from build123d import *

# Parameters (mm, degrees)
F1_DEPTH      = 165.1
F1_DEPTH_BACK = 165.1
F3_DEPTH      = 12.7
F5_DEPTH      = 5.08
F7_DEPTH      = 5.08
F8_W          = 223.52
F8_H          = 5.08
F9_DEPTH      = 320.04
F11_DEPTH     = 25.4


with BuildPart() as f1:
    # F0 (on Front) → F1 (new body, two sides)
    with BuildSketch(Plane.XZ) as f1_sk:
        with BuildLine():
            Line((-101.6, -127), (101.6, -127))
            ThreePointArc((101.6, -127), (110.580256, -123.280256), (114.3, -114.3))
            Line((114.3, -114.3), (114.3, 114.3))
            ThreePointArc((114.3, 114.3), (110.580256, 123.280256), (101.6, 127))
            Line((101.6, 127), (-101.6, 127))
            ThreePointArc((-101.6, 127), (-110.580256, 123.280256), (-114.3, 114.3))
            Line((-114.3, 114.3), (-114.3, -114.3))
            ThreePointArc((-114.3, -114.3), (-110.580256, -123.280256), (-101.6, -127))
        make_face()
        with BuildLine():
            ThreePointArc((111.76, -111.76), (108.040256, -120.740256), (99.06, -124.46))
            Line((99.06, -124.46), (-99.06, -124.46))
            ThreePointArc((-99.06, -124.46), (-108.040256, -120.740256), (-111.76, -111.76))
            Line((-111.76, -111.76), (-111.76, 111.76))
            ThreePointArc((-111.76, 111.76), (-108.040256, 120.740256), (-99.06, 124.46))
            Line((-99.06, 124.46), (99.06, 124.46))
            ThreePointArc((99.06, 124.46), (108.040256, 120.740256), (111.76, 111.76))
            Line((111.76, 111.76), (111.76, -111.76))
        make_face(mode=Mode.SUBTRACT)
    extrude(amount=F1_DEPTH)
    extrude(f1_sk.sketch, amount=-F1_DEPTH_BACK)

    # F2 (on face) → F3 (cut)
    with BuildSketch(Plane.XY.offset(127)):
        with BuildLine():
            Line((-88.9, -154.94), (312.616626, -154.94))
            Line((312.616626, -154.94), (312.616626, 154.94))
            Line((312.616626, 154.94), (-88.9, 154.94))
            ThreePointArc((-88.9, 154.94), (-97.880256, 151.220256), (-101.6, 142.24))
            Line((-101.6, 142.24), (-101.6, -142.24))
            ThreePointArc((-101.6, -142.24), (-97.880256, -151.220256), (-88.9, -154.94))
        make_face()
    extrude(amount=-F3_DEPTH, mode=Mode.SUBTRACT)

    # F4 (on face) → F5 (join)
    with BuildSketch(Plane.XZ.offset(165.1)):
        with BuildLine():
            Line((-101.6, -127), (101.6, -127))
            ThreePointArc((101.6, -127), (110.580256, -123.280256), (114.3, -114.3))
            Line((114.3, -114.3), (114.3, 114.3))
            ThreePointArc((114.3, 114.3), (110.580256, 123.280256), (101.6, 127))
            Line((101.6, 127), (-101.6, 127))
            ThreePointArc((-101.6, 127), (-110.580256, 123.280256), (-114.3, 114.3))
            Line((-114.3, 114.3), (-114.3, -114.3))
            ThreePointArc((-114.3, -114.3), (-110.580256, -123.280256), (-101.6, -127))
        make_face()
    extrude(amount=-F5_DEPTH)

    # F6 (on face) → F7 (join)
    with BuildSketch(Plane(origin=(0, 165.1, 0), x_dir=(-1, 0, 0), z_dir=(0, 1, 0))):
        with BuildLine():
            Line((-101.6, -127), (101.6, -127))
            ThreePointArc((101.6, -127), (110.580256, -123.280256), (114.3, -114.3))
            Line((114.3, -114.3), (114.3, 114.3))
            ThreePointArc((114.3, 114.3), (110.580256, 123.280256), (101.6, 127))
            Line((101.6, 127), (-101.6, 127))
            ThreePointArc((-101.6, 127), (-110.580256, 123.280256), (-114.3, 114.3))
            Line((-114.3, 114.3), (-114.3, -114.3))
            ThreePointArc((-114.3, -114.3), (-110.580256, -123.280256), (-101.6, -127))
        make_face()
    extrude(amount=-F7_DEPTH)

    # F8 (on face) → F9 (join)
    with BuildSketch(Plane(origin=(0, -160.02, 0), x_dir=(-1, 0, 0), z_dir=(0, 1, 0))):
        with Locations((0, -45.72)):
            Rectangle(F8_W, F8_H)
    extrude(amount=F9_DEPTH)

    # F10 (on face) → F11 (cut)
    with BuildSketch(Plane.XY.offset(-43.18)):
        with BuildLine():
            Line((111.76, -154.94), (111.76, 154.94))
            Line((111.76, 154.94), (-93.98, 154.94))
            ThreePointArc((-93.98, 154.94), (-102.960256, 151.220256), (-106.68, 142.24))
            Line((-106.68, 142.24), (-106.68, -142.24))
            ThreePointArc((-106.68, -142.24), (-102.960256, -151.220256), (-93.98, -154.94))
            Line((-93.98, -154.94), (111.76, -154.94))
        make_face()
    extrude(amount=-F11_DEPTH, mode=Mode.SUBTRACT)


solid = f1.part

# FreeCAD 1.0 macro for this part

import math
import FreeCAD as App
import Part
import Sketcher

V = App.Vector
Q = App.Units.Quantity

doc = App.newDocument("Part")
body = doc.addObject("PartDesign::Body", "Body")

# Sketch on XZ plane
sketch1 = body.newObject("Sketcher::SketchObject", "Sketch")
sketch1.AttachmentSupport = (doc.getObject("XZ_Plane"), [""])
sketch1.MapMode = "FlatFace"
sketch1.addGeometry([
    Part.LineSegment(V(-102, -127, 0), V(102, -127, 0)),  # 0
    Part.ArcOfCircle(Part.Circle(V(102, -114, 0), V(0, 0, 1), 13), math.radians(-90), math.radians(0)),  # 1
    Part.LineSegment(V(114, -114, 0), V(114, 114, 0)),  # 2
    Part.ArcOfCircle(Part.Circle(V(102, 114, 0), V(0, 0, 1), 13), math.radians(0), math.radians(90)),  # 3
    Part.LineSegment(V(102, 127, 0), V(-102, 127, 0)),  # 4
    Part.ArcOfCircle(Part.Circle(V(-102, 114, 0), V(0, 0, 1), 13), math.radians(90), math.radians(180)),  # 5
    Part.LineSegment(V(-114, 114, 0), V(-114, -114, 0)),  # 6
    Part.ArcOfCircle(Part.Circle(V(-102, -114, 0), V(0, 0, 1), 13), math.radians(-180), math.radians(-90)),  # 7
    Part.LineSegment(V(112, 112, 0), V(112, -112, 0)),  # 8
    Part.ArcOfCircle(Part.Circle(V(99, -112, 0), V(0, 0, 1), 13), math.radians(-90), math.radians(0)),  # 9
    Part.LineSegment(V(99, -124, 0), V(-99, -124, 0)),  # 10
    Part.ArcOfCircle(Part.Circle(V(-99, -112, 0), V(0, 0, 1), 13), math.radians(-180), math.radians(-90)),  # 11
    Part.LineSegment(V(-112, -112, 0), V(-112, 112, 0)),  # 12
    Part.ArcOfCircle(Part.Circle(V(-99, 112, 0), V(0, 0, 1), 13), math.radians(90), math.radians(180)),  # 13
    Part.LineSegment(V(-99, 124, 0), V(99, 124, 0)),  # 14
    Part.ArcOfCircle(Part.Circle(V(99, 112, 0), V(0, 0, 1), 13), math.radians(0), math.radians(90)),  # 15
], False)
sketch1.addConstraint([
    Sketcher.Constraint("Tangent", 0, 2, 1, 1),
    Sketcher.Constraint("Tangent", 1, 2, 2, 1),
    Sketcher.Constraint("Tangent", 2, 2, 3, 1),
    Sketcher.Constraint("Tangent", 3, 2, 4, 1),
    Sketcher.Constraint("Tangent", 4, 2, 5, 1),
    Sketcher.Constraint("Tangent", 5, 2, 6, 1),
    Sketcher.Constraint("Tangent", 6, 2, 7, 1),
    Sketcher.Constraint("Tangent", 7, 2, 0, 1),
    Sketcher.Constraint("Tangent", 8, 2, 9, 2),
    Sketcher.Constraint("Tangent", 9, 1, 10, 1),
    Sketcher.Constraint("Tangent", 10, 2, 11, 2),
    Sketcher.Constraint("Tangent", 11, 1, 12, 1),
    Sketcher.Constraint("Tangent", 12, 2, 13, 2),
    Sketcher.Constraint("Tangent", 13, 1, 14, 1),
    Sketcher.Constraint("Tangent", 14, 2, 15, 2),
    Sketcher.Constraint("Tangent", 15, 1, 8, 1),
    Sketcher.Constraint("Horizontal", 0),
    Sketcher.Constraint("Vertical", 2),
    Sketcher.Constraint("Horizontal", 4),
    Sketcher.Constraint("Vertical", 6),
    Sketcher.Constraint("Vertical", 8),
    Sketcher.Constraint("Horizontal", 10),
    Sketcher.Constraint("Vertical", 12),
    Sketcher.Constraint("Horizontal", 14),
    Sketcher.Constraint("Equal", 1, 3),
    Sketcher.Constraint("Equal", 3, 5),
    Sketcher.Constraint("Equal", 5, 7),
    Sketcher.Constraint("Equal", 7, 9),
    Sketcher.Constraint("Equal", 9, 11),
    Sketcher.Constraint("Equal", 11, 13),
    Sketcher.Constraint("Equal", 13, 15),
    Sketcher.Constraint("Symmetric", 1, 3, 5, 3, -1, 1),
    Sketcher.Constraint("Symmetric", 9, 3, 13, 3, -1, 1),
    Sketcher.Constraint("Radius", 1, Q("0.5 in")),
    Sketcher.Constraint("DistanceX", 0, 1, 0, 2, Q("8 in")),
    Sketcher.Constraint("DistanceY", 2, 1, 2, 2, Q("9 in")),
    Sketcher.Constraint("DistanceX", 10, 2, 10, 1, Q("7.8 in")),
    Sketcher.Constraint("DistanceY", 8, 2, 8, 1, Q("8.8 in")),
])
pad1 = body.newObject("PartDesign::Pad", "Pad")
pad1.Profile = sketch1
pad1.Type = "TwoLengths"
pad1.Length = Q("6.5 in")
pad1.Length2 = Q("6.5 in")

# Sketch on XY plane
sketch2 = body.newObject("Sketcher::SketchObject", "Sketch001")
sketch2.AttachmentSupport = (doc.getObject("XY_Plane"), [""])
sketch2.MapMode = "FlatFace"
sketch2.AttachmentOffset = App.Placement(V(0, 0, 5 * 25.4), App.Rotation())
sketch2.addGeometry([
    Part.LineSegment(V(-89, -155, 0), V(313, -155, 0)),  # 0
    Part.LineSegment(V(313, -155, 0), V(313, 155, 0)),  # 1
    Part.LineSegment(V(313, 155, 0), V(-89, 155, 0)),  # 2
    Part.ArcOfCircle(Part.Circle(V(-89, 142, 0), V(0, 0, 1), 13), math.radians(90), math.radians(180)),  # 3
    Part.LineSegment(V(-102, 142, 0), V(-102, -142, 0)),  # 4
    Part.ArcOfCircle(Part.Circle(V(-89, -142, 0), V(0, 0, 1), 13), math.radians(-180), math.radians(-90)),  # 5
], False)
sketch2.addConstraint([
    Sketcher.Constraint("Coincident", 0, 2, 1, 1),
    Sketcher.Constraint("Coincident", 1, 2, 2, 1),
    Sketcher.Constraint("Tangent", 2, 2, 3, 1),
    Sketcher.Constraint("Tangent", 3, 2, 4, 1),
    Sketcher.Constraint("Tangent", 4, 2, 5, 1),
    Sketcher.Constraint("Tangent", 5, 2, 0, 1),
    Sketcher.Constraint("Horizontal", 0),
    Sketcher.Constraint("Vertical", 1),
    Sketcher.Constraint("Horizontal", 2),
    Sketcher.Constraint("Vertical", 4),
    Sketcher.Constraint("Equal", 3, 5),
    Sketcher.Constraint("Radius", 3, Q("0.5 in")),
    Sketcher.Constraint("DistanceY", 1, 1, 1, 2, Q("12.2 in")),
    Sketcher.Constraint("DistanceX", 3, 2, -1, 1, Q("4 in")),
    Sketcher.Constraint("DistanceY", -1, 1, 3, 3, Q("5.6 in")),
    Sketcher.Constraint("DistanceX", 0, 1, 0, 2, 401.516626),
])
pocket1 = body.newObject("PartDesign::Pocket", "Pocket")
pocket1.Profile = sketch2
pocket1.Length = Q("0.5 in")

# Sketch on XZ plane
sketch3 = body.newObject("Sketcher::SketchObject", "Sketch002")
sketch3.AttachmentSupport = (doc.getObject("XZ_Plane"), [""])
sketch3.MapMode = "FlatFace"
sketch3.AttachmentOffset = App.Placement(V(0, 0, 6.5 * 25.4), App.Rotation())
sketch3.addGeometry([
    Part.LineSegment(V(-102, -127, 0), V(102, -127, 0)),  # 0
    Part.ArcOfCircle(Part.Circle(V(102, -114, 0), V(0, 0, 1), 13), math.radians(-90), math.radians(0)),  # 1
    Part.LineSegment(V(114, -114, 0), V(114, 114, 0)),  # 2
    Part.ArcOfCircle(Part.Circle(V(102, 114, 0), V(0, 0, 1), 13), math.radians(0), math.radians(90)),  # 3
    Part.LineSegment(V(102, 127, 0), V(-102, 127, 0)),  # 4
    Part.ArcOfCircle(Part.Circle(V(-102, 114, 0), V(0, 0, 1), 13), math.radians(90), math.radians(180)),  # 5
    Part.LineSegment(V(-114, 114, 0), V(-114, -114, 0)),  # 6
    Part.ArcOfCircle(Part.Circle(V(-102, -114, 0), V(0, 0, 1), 13), math.radians(-180), math.radians(-90)),  # 7
], False)
sketch3.addConstraint([
    Sketcher.Constraint("Tangent", 0, 2, 1, 1),
    Sketcher.Constraint("Tangent", 1, 2, 2, 1),
    Sketcher.Constraint("Tangent", 2, 2, 3, 1),
    Sketcher.Constraint("Tangent", 3, 2, 4, 1),
    Sketcher.Constraint("Tangent", 4, 2, 5, 1),
    Sketcher.Constraint("Tangent", 5, 2, 6, 1),
    Sketcher.Constraint("Tangent", 6, 2, 7, 1),
    Sketcher.Constraint("Tangent", 7, 2, 0, 1),
    Sketcher.Constraint("Horizontal", 0),
    Sketcher.Constraint("Vertical", 2),
    Sketcher.Constraint("Horizontal", 4),
    Sketcher.Constraint("Vertical", 6),
    Sketcher.Constraint("Equal", 1, 3),
    Sketcher.Constraint("Equal", 3, 5),
    Sketcher.Constraint("Equal", 5, 7),
    Sketcher.Constraint("Symmetric", 1, 3, 5, 3, -1, 1),
    Sketcher.Constraint("Radius", 1, Q("0.5 in")),
    Sketcher.Constraint("DistanceX", 0, 1, 0, 2, Q("8 in")),
    Sketcher.Constraint("DistanceY", 2, 1, 2, 2, Q("9 in")),
])
pad2 = body.newObject("PartDesign::Pad", "Pad001")
pad2.Profile = sketch3
pad2.Length = Q("0.2 in")
pad2.Reversed = True

# Sketch on XZ plane
sketch4 = body.newObject("Sketcher::SketchObject", "Sketch003")
sketch4.AttachmentSupport = (doc.getObject("XZ_Plane"), [""])
sketch4.MapMode = "FlatFace"
sketch4.AttachmentOffset = App.Placement(V(0, 0, -6.5 * 25.4), App.Rotation())
sketch4.addGeometry([
    Part.LineSegment(V(102, -127, 0), V(-102, -127, 0)),  # 0
    Part.ArcOfCircle(Part.Circle(V(-102, -114, 0), V(0, 0, 1), 13), math.radians(-180), math.radians(-90)),  # 1
    Part.LineSegment(V(-114, -114, 0), V(-114, 114, 0)),  # 2
    Part.ArcOfCircle(Part.Circle(V(-102, 114, 0), V(0, 0, 1), 13), math.radians(90), math.radians(180)),  # 3
    Part.LineSegment(V(-102, 127, 0), V(102, 127, 0)),  # 4
    Part.ArcOfCircle(Part.Circle(V(102, 114, 0), V(0, 0, 1), 13), math.radians(0), math.radians(90)),  # 5
    Part.LineSegment(V(114, 114, 0), V(114, -114, 0)),  # 6
    Part.ArcOfCircle(Part.Circle(V(102, -114, 0), V(0, 0, 1), 13), math.radians(-90), math.radians(0)),  # 7
], False)
sketch4.addConstraint([
    Sketcher.Constraint("Tangent", 0, 2, 1, 2),
    Sketcher.Constraint("Tangent", 1, 1, 2, 1),
    Sketcher.Constraint("Tangent", 2, 2, 3, 2),
    Sketcher.Constraint("Tangent", 3, 1, 4, 1),
    Sketcher.Constraint("Tangent", 4, 2, 5, 2),
    Sketcher.Constraint("Tangent", 5, 1, 6, 1),
    Sketcher.Constraint("Tangent", 6, 2, 7, 2),
    Sketcher.Constraint("Tangent", 7, 1, 0, 1),
    Sketcher.Constraint("Horizontal", 0),
    Sketcher.Constraint("Vertical", 2),
    Sketcher.Constraint("Horizontal", 4),
    Sketcher.Constraint("Vertical", 6),
    Sketcher.Constraint("Equal", 1, 3),
    Sketcher.Constraint("Equal", 3, 5),
    Sketcher.Constraint("Equal", 5, 7),
    Sketcher.Constraint("Symmetric", 1, 3, 5, 3, -1, 1),
    Sketcher.Constraint("Radius", 1, Q("0.5 in")),
    Sketcher.Constraint("DistanceX", 0, 2, 0, 1, Q("8 in")),
    Sketcher.Constraint("DistanceY", 2, 1, 2, 2, Q("9 in")),
])
pad3 = body.newObject("PartDesign::Pad", "Pad002")
pad3.Profile = sketch4
pad3.Length = Q("0.2 in")

# Sketch on XZ plane
sketch5 = body.newObject("Sketcher::SketchObject", "Sketch004")
sketch5.AttachmentSupport = (doc.getObject("XZ_Plane"), [""])
sketch5.MapMode = "FlatFace"
sketch5.AttachmentOffset = App.Placement(V(0, 0, 6.3 * 25.4), App.Rotation())
sketch5.addGeometry([
    Part.LineSegment(V(112, -43, 0), V(112, -48, 0)),
    Part.LineSegment(V(112, -48, 0), V(-112, -48, 0)),
    Part.LineSegment(V(-112, -48, 0), V(-112, -43, 0)),
    Part.LineSegment(V(-112, -43, 0), V(112, -43, 0)),
], False)
sketch5.addConstraint([
    Sketcher.Constraint("Coincident", 0, 2, 1, 1),
    Sketcher.Constraint("Coincident", 1, 2, 2, 1),
    Sketcher.Constraint("Coincident", 2, 2, 3, 1),
    Sketcher.Constraint("Coincident", 3, 2, 0, 1),
    Sketcher.Constraint("Vertical", 0),
    Sketcher.Constraint("Horizontal", 1),
    Sketcher.Constraint("Vertical", 2),
    Sketcher.Constraint("Horizontal", 3),
    Sketcher.Constraint("DistanceX", 1, 2, 1, 1, Q("8.8 in")),
    Sketcher.Constraint("DistanceY", 0, 2, 0, 1, Q("0.2 in")),
    Sketcher.Constraint("DistanceX", -1, 1, 0, 2, Q("4.4 in")),
    Sketcher.Constraint("DistanceY", 0, 2, -1, 1, Q("1.9 in")),
])
pad4 = body.newObject("PartDesign::Pad", "Pad003")
pad4.Profile = sketch5
pad4.Length = Q("12.6 in")
pad4.Reversed = True

# Sketch on XY plane
sketch6 = body.newObject("Sketcher::SketchObject", "Sketch005")
sketch6.AttachmentSupport = (doc.getObject("XY_Plane"), [""])
sketch6.MapMode = "FlatFace"
sketch6.AttachmentOffset = App.Placement(V(0, 0, -1.7 * 25.4), App.Rotation())
sketch6.addGeometry([
    Part.LineSegment(V(112, -155, 0), V(112, 155, 0)),  # 0
    Part.LineSegment(V(112, 155, 0), V(-94, 155, 0)),  # 1
    Part.ArcOfCircle(Part.Circle(V(-94, 142, 0), V(0, 0, 1), 13), math.radians(90), math.radians(180)),  # 2
    Part.LineSegment(V(-107, 142, 0), V(-107, -142, 0)),  # 3
    Part.ArcOfCircle(Part.Circle(V(-94, -142, 0), V(0, 0, 1), 13), math.radians(-180), math.radians(-90)),  # 4
    Part.LineSegment(V(-94, -155, 0), V(112, -155, 0)),  # 5
], False)
sketch6.addConstraint([
    Sketcher.Constraint("Coincident", 0, 2, 1, 1),
    Sketcher.Constraint("Tangent", 1, 2, 2, 1),
    Sketcher.Constraint("Tangent", 2, 2, 3, 1),
    Sketcher.Constraint("Tangent", 3, 2, 4, 1),
    Sketcher.Constraint("Tangent", 4, 2, 5, 1),
    Sketcher.Constraint("Coincident", 5, 2, 0, 1),
    Sketcher.Constraint("Vertical", 0),
    Sketcher.Constraint("Horizontal", 1),
    Sketcher.Constraint("Vertical", 3),
    Sketcher.Constraint("Horizontal", 5),
    Sketcher.Constraint("Equal", 2, 4),
    Sketcher.Constraint("Radius", 2, Q("0.5 in")),
    Sketcher.Constraint("DistanceX", 1, 2, 1, 1, Q("8.1 in")),
    Sketcher.Constraint("DistanceY", 0, 1, 0, 2, Q("12.2 in")),
    Sketcher.Constraint("DistanceX", 2, 3, -1, 1, Q("3.7 in")),
    Sketcher.Constraint("DistanceY", -1, 1, 2, 3, Q("5.6 in")),
])
pocket2 = body.newObject("PartDesign::Pocket", "Pocket001")
pocket2.Profile = sketch6
pocket2.Length = Q("1 in")

doc.recompute()
